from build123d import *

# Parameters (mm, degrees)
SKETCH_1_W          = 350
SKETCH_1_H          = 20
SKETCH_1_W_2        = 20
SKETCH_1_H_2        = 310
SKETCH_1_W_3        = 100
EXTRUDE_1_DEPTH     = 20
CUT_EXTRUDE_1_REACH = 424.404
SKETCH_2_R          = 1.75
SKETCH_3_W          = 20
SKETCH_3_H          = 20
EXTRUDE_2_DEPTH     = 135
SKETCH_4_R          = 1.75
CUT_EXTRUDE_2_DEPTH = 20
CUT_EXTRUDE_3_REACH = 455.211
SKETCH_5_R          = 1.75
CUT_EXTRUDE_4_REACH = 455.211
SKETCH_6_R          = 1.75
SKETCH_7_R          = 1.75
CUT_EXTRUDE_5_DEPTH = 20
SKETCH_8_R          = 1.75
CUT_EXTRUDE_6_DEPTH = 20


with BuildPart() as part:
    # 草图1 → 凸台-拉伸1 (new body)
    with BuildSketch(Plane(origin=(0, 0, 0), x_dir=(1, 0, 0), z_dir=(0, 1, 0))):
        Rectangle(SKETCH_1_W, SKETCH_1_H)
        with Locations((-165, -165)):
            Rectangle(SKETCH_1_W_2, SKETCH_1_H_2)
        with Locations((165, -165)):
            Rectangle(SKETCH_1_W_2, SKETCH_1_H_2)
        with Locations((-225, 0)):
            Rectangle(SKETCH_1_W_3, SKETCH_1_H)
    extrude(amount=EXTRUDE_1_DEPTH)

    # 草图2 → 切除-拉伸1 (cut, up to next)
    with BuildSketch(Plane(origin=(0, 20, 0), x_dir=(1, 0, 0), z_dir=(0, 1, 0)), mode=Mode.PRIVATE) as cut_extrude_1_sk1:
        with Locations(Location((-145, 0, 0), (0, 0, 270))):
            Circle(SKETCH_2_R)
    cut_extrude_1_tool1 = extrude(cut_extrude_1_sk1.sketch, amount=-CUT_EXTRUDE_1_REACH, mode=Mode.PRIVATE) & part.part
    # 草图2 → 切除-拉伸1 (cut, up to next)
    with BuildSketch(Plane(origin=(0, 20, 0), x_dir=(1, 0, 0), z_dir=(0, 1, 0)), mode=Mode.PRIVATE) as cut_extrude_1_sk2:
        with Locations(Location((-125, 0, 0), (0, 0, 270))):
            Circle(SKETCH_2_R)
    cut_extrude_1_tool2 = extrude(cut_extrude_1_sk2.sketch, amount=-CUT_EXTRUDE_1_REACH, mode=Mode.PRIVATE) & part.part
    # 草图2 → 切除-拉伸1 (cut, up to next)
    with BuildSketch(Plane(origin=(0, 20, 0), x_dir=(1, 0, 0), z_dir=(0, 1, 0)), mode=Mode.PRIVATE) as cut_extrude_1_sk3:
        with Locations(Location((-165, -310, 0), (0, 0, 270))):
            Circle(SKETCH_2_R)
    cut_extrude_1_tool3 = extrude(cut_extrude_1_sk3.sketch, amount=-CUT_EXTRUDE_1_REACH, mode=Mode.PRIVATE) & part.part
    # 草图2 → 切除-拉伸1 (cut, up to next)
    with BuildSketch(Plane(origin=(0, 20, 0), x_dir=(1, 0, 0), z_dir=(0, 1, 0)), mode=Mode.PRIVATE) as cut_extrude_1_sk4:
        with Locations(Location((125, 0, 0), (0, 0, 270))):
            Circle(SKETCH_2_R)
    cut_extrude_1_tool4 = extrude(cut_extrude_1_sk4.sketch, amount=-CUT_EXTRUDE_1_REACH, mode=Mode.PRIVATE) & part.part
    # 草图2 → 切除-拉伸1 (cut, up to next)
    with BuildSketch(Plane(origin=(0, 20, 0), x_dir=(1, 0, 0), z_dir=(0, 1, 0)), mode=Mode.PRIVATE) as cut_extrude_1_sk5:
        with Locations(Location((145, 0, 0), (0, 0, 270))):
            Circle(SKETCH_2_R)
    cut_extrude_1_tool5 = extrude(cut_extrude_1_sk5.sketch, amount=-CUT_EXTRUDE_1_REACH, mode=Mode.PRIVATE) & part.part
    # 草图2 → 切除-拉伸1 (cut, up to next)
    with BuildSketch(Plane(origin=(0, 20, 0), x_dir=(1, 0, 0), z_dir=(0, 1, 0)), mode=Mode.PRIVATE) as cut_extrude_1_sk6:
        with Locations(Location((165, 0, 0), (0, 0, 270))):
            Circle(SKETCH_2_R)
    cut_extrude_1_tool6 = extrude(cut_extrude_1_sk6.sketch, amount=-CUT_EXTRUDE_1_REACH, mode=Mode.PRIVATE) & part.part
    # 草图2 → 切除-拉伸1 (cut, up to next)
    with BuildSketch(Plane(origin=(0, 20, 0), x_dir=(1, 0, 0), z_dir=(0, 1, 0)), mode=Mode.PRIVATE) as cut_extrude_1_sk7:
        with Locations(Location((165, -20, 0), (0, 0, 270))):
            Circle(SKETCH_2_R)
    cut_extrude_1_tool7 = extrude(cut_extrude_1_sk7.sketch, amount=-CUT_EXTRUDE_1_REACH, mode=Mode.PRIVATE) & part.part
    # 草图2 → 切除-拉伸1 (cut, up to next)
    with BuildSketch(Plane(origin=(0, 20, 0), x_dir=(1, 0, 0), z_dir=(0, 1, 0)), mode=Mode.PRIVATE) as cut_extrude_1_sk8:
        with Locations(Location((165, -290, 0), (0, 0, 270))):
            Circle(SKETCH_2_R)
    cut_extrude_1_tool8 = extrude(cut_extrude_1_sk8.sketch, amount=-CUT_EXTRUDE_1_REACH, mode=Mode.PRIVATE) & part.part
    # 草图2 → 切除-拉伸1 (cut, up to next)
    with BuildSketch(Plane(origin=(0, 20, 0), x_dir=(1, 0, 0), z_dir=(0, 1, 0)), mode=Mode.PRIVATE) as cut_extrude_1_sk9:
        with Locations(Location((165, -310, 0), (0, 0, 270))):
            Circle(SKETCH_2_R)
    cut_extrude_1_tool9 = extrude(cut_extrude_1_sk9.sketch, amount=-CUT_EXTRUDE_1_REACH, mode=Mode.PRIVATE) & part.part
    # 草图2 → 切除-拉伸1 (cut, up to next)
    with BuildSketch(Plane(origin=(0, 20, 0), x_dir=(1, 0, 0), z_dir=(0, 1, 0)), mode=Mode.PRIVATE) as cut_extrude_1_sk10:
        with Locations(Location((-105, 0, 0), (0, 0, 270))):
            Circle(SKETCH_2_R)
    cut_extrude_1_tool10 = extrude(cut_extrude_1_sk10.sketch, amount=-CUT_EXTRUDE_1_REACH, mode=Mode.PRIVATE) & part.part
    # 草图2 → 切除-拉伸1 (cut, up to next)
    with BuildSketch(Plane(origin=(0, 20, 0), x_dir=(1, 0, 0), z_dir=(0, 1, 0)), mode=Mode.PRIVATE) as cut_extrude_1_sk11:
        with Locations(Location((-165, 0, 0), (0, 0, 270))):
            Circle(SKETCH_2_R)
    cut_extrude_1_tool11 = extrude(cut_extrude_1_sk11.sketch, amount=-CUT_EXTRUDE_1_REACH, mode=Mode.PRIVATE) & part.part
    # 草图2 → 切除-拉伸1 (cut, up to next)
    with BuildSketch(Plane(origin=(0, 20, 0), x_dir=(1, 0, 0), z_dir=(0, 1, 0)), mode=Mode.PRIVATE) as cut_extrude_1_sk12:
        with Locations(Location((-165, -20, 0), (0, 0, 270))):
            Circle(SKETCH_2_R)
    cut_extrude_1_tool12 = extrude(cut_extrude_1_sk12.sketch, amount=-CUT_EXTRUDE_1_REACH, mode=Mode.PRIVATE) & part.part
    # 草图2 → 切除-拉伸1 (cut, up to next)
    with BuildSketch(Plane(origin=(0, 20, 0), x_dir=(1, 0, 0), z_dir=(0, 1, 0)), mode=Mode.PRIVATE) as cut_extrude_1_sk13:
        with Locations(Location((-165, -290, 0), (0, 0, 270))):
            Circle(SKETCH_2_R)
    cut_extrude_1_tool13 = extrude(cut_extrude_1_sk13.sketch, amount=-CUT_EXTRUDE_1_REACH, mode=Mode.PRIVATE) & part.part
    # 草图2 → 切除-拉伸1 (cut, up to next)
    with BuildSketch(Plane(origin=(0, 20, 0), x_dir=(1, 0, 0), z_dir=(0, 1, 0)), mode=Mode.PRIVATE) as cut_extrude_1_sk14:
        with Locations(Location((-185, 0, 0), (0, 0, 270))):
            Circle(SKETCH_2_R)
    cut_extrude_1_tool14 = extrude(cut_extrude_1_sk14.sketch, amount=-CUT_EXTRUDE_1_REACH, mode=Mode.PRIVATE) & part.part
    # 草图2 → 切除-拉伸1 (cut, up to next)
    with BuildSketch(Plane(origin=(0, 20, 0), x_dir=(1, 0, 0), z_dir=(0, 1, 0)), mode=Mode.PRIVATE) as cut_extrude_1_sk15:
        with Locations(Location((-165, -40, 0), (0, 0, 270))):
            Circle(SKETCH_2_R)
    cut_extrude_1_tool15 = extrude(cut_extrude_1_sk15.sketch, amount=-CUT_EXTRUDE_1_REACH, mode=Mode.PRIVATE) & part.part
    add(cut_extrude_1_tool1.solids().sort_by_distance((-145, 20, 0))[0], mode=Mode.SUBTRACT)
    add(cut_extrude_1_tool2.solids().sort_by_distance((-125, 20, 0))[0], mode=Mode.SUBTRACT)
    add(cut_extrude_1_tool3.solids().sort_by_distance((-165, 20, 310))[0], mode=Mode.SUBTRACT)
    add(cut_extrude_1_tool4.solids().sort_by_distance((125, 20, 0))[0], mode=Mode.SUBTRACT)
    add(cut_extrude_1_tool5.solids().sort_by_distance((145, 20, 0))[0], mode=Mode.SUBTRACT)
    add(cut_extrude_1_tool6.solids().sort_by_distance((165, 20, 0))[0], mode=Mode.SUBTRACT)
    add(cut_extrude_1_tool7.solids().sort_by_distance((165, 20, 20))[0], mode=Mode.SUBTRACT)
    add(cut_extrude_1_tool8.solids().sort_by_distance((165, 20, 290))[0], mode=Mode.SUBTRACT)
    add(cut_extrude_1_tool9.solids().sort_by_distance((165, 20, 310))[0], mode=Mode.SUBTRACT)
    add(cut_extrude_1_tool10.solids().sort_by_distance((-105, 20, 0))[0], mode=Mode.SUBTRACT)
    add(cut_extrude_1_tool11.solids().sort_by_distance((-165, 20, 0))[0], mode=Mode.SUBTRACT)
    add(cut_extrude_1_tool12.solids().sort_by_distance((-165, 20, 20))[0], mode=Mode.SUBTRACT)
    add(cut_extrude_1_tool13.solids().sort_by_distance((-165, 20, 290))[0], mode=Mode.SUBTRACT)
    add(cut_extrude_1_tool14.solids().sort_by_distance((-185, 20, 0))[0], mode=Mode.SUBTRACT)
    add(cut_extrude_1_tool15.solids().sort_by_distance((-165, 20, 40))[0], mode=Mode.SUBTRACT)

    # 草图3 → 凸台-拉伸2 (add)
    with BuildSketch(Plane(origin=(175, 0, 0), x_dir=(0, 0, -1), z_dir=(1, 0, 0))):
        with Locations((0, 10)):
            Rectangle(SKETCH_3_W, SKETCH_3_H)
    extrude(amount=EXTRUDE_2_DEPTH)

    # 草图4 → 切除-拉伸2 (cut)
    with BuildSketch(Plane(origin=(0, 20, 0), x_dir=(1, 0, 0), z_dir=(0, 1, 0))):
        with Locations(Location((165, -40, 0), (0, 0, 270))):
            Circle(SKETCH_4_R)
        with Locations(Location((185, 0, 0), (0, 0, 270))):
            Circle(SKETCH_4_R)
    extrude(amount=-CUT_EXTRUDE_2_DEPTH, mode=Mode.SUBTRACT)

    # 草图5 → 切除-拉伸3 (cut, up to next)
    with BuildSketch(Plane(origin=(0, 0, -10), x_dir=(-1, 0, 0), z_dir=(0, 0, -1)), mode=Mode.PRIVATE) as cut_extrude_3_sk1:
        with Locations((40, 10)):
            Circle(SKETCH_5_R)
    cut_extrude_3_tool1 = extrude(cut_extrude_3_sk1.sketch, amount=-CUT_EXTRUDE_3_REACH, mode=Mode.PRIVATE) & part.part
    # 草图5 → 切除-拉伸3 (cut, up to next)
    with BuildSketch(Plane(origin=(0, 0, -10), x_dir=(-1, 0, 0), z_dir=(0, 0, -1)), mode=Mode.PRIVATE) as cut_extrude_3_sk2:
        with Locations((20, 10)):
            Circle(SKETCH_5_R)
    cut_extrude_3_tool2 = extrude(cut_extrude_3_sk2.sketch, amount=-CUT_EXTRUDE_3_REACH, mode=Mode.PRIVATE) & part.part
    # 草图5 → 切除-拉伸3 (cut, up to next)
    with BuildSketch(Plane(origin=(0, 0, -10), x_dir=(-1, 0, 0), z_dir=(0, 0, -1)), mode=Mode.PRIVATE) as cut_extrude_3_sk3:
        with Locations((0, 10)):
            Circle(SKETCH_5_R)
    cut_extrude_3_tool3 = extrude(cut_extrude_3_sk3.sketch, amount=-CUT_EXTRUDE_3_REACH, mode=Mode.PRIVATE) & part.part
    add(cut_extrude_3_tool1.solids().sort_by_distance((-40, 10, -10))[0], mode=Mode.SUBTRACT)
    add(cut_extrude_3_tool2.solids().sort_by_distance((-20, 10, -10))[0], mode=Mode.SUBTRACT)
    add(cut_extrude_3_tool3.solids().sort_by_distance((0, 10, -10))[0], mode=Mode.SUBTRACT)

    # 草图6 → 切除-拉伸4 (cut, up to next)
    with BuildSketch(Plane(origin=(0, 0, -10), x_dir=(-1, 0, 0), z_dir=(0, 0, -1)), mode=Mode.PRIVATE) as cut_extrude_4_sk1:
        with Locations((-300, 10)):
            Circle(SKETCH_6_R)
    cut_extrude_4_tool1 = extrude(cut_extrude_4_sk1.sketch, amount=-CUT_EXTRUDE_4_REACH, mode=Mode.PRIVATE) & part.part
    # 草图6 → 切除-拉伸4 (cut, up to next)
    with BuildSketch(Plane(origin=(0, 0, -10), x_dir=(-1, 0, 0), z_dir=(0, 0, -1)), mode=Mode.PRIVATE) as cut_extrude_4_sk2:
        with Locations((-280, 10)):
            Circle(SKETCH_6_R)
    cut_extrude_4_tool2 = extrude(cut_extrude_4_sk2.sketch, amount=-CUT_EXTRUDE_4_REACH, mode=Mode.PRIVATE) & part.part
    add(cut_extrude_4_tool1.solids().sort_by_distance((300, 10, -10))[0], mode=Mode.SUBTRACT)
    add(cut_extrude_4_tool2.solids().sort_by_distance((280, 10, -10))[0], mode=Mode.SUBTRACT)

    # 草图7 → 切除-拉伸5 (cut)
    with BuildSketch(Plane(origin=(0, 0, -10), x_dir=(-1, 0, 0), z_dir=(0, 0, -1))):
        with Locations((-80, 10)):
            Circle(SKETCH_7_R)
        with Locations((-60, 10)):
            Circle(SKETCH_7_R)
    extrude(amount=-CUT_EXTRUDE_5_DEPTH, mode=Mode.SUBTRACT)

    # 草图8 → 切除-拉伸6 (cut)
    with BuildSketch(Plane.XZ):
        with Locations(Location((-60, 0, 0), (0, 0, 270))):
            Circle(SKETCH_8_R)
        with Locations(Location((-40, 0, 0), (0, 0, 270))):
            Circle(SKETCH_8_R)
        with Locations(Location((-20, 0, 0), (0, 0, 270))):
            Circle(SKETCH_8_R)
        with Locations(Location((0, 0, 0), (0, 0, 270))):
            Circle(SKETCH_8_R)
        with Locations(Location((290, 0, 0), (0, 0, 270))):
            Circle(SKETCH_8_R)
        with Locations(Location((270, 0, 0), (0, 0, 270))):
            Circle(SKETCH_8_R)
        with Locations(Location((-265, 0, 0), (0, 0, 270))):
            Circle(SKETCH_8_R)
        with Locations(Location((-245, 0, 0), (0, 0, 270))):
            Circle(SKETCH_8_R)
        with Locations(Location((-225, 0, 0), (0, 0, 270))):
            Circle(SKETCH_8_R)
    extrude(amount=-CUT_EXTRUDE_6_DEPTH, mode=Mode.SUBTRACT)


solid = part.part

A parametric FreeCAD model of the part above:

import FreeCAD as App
import Part
import Sketcher

V = App.Vector
Q = App.Units.Quantity


def add_polygon(sketch, points):
    """Adds a closed chain of lines whose ends are joined by coincident constraints."""
    first, n = sketch.GeometryCount, len(points)
    for a, b in zip(points, points[1:] + points[:1]):
        sketch.addGeometry(Part.LineSegment(App.Vector(*a, 0), App.Vector(*b, 0)), False)
    for i in range(n):
        sketch.addConstraint(Sketcher.Constraint("Coincident", first + i, 2, first + (i + 1) % n, 1))

doc = App.newDocument("Part")
body = doc.addObject("PartDesign::Body", "Body")

# Sketch on XZ plane
sketch1 = body.newObject("Sketcher::SketchObject", "Sketch")
sketch1.AttachmentSupport = (doc.getObject("XZ_Plane"), [""])
sketch1.MapMode = "FlatFace"
add_polygon(sketch1, [(-175, 10), (-175, 320), (-155, 320), (-155, 10), (155, 10), (155, 320), (175, 320), (175, -10), (-275, -10), (-275, 10)])  # lines 0-9
sketch1.addConstraint([
    Sketcher.Constraint("Vertical", 0),
    Sketcher.Constraint("Horizontal", 1),
    Sketcher.Constraint("Vertical", 2),
    Sketcher.Constraint("Horizontal", 3),
    Sketcher.Constraint("Vertical", 4),
    Sketcher.Constraint("Horizontal", 5),
    Sketcher.Constraint("Vertical", 6),
    Sketcher.Constraint("Horizontal", 7),
    Sketcher.Constraint("Vertical", 8),
    Sketcher.Constraint("Horizontal", 9),
    Sketcher.Constraint("Symmetric", 6, 2, 9, 2, -1, 1),
    Sketcher.Constraint("Symmetric", 1, 2, 4, 2, -2),
    Sketcher.Constraint("Horizontal", 3, 2, 8, 2),
    Sketcher.Constraint("Equal", 3, 0),
    Sketcher.Constraint("Equal", 5, 8),
    Sketcher.Constraint("DistanceX", 1, 1, 1, 2, Q("20 mm")),
    Sketcher.Constraint("DistanceX", 3, 1, 3, 2, Q("310 mm")),
    Sketcher.Constraint("DistanceX", 7, 2, 7, 1, Q("450 mm")),
])
pad1 = body.newObject("PartDesign::Pad", "Pad")
pad1.Profile = sketch1
pad1.Length = 20
pad1.Reversed = True

# Sketch on XZ plane
sketch2 = body.newObject("Sketcher::SketchObject", "Sketch001")
sketch2.AttachmentSupport = (doc.getObject("XZ_Plane"), [""])
sketch2.MapMode = "FlatFace"
sketch2.AttachmentOffset = App.Placement(V(0, 0, -20), App.Rotation())
sketch2.addGeometry(Part.Circle(V(-145, 0, 0), V(0, 0, 1), 1.8), False)
sketch2.addConstraint([
    Sketcher.Constraint("PointOnObject", 0, 3, -1),
    Sketcher.Constraint("Diameter", 0, Q("3.5 mm")),
    Sketcher.Constraint("DistanceX", 0, 3, -1, 1, Q("145 mm")),
])
pocket1 = body.newObject("PartDesign::Pocket", "Pocket")
pocket1.Profile = sketch2
pocket1.Type = "UpToFirst"
pocket1.Reversed = True

# Sketch on XZ plane
sketch3 = body.newObject("Sketcher::SketchObject", "Sketch002")
sketch3.AttachmentSupport = (doc.getObject("XZ_Plane"), [""])
sketch3.MapMode = "FlatFace"
sketch3.AttachmentOffset = App.Placement(V(0, 0, -20), App.Rotation())
sketch3.addGeometry(Part.Circle(V(-125, 0, 0), V(0, 0, 1), 1.8), False)
sketch3.addConstraint([
    Sketcher.Constraint("PointOnObject", 0, 3, -1),
    Sketcher.Constraint("Diameter", 0, Q("3.5 mm")),
    Sketcher.Constraint("DistanceX", 0, 3, -1, 1, Q("125 mm")),
])
pocket2 = body.newObject("PartDesign::Pocket", "Pocket001")
pocket2.Profile = sketch3
pocket2.Type = "UpToFirst"
pocket2.Reversed = True

# Sketch on XZ plane
sketch4 = body.newObject("Sketcher::SketchObject", "Sketch003")
sketch4.AttachmentSupport = (doc.getObject("XZ_Plane"), [""])
sketch4.MapMode = "FlatFace"
sketch4.AttachmentOffset = App.Placement(V(0, 0, -20), App.Rotation())
sketch4.addGeometry(Part.Circle(V(-165, 310, 0), V(0, 0, 1), 1.8), False)
sketch4.addConstraint([
    Sketcher.Constraint("Diameter", 0, Q("3.5 mm")),
    Sketcher.Constraint("DistanceX", 0, 3, -1, 1, Q("165 mm")),
    Sketcher.Constraint("DistanceY", -1, 1, 0, 3, Q("310 mm")),
])
pocket3 = body.newObject("PartDesign::Pocket", "Pocket002")
pocket3.Profile = sketch4
pocket3.Type = "UpToFirst"
pocket3.Reversed = True

# Sketch on XZ plane
sketch5 = body.newObject("Sketcher::SketchObject", "Sketch004")
sketch5.AttachmentSupport = (doc.getObject("XZ_Plane"), [""])
sketch5.MapMode = "FlatFace"
sketch5.AttachmentOffset = App.Placement(V(0, 0, -20), App.Rotation())
sketch5.addGeometry(Part.Circle(V(125, 0, 0), V(0, 0, 1), 1.8), False)
sketch5.addConstraint([
    Sketcher.Constraint("PointOnObject", 0, 3, -1),
    Sketcher.Constraint("Diameter", 0, Q("3.5 mm")),
    Sketcher.Constraint("DistanceX", -1, 1, 0, 3, Q("125 mm")),
])
pocket4 = body.newObject("PartDesign::Pocket", "Pocket003")
pocket4.Profile = sketch5
pocket4.Type = "UpToFirst"
pocket4.Reversed = True

# Sketch on XZ plane
sketch6 = body.newObject("Sketcher::SketchObject", "Sketch005")
sketch6.AttachmentSupport = (doc.getObject("XZ_Plane"), [""])
sketch6.MapMode = "FlatFace"
sketch6.AttachmentOffset = App.Placement(V(0, 0, -20), App.Rotation())
sketch6.addGeometry(Part.Circle(V(145, 0, 0), V(0, 0, 1), 1.8), False)
sketch6.addConstraint([
    Sketcher.Constraint("PointOnObject", 0, 3, -1),
    Sketcher.Constraint("Diameter", 0, Q("3.5 mm")),
    Sketcher.Constraint("DistanceX", -1, 1, 0, 3, Q("145 mm")),
])
pocket5 = body.newObject("PartDesign::Pocket", "Pocket004")
pocket5.Profile = sketch6
pocket5.Type = "UpToFirst"
pocket5.Reversed = True

# Sketch on XZ plane
sketch7 = body.newObject("Sketcher::SketchObject", "Sketch006")
sketch7.AttachmentSupport = (doc.getObject("XZ_Plane"), [""])
sketch7.MapMode = "FlatFace"
sketch7.AttachmentOffset = App.Placement(V(0, 0, -20), App.Rotation())
sketch7.addGeometry(Part.Circle(V(165, 0, 0), V(0, 0, 1), 1.8), False)
sketch7.addConstraint([
    Sketcher.Constraint("PointOnObject", 0, 3, -1),
    Sketcher.Constraint("Diameter", 0, Q("3.5 mm")),
    Sketcher.Constraint("DistanceX", -1, 1, 0, 3, Q("165 mm")),
])
pocket6 = body.newObject("PartDesign::Pocket", "Pocket005")
pocket6.Profile = sketch7
pocket6.Type = "UpToFirst"
pocket6.Reversed = True

# Sketch on XZ plane
sketch8 = body.newObject("Sketcher::SketchObject", "Sketch007")
sketch8.AttachmentSupport = (doc.getObject("XZ_Plane"), [""])
sketch8.MapMode = "FlatFace"
sketch8.AttachmentOffset = App.Placement(V(0, 0, -20), App.Rotation())
sketch8.addGeometry(Part.Circle(V(165, 20, 0), V(0, 0, 1), 1.8), False)
sketch8.addConstraint([
    Sketcher.Constraint("Diameter", 0, Q("3.5 mm")),
    Sketcher.Constraint("DistanceX", -1, 1, 0, 3, Q("165 mm")),
    Sketcher.Constraint("DistanceY", -1, 1, 0, 3, Q("20 mm")),
])
pocket7 = body.newObject("PartDesign::Pocket", "Pocket006")
pocket7.Profile = sketch8
pocket7.Type = "UpToFirst"
pocket7.Reversed = True

# Sketch on XZ plane
sketch9 = body.newObject("Sketcher::SketchObject", "Sketch008")
sketch9.AttachmentSupport = (doc.getObject("XZ_Plane"), [""])
sketch9.MapMode = "FlatFace"
sketch9.AttachmentOffset = App.Placement(V(0, 0, -20), App.Rotation())
sketch9.addGeometry(Part.Circle(V(165, 290, 0), V(0, 0, 1), 1.8), False)
sketch9.addConstraint([
    Sketcher.Constraint("Diameter", 0, Q("3.5 mm")),
    Sketcher.Constraint("DistanceX", -1, 1, 0, 3, Q("165 mm")),
    Sketcher.Constraint("DistanceY", -1, 1, 0, 3, Q("290 mm")),
])
pocket8 = body.newObject("PartDesign::Pocket", "Pocket007")
pocket8.Profile = sketch9
pocket8.Type = "UpToFirst"
pocket8.Reversed = True

# Sketch on XZ plane
sketch10 = body.newObject("Sketcher::SketchObject", "Sketch009")
sketch10.AttachmentSupport = (doc.getObject("XZ_Plane"), [""])
sketch10.MapMode = "FlatFace"
sketch10.AttachmentOffset = App.Placement(V(0, 0, -20), App.Rotation())
sketch10.addGeometry(Part.Circle(V(165, 310, 0), V(0, 0, 1), 1.8), False)
sketch10.addConstraint([
    Sketcher.Constraint("Diameter", 0, Q("3.5 mm")),
    Sketcher.Constraint("DistanceX", -1, 1, 0, 3, Q("165 mm")),
    Sketcher.Constraint("DistanceY", -1, 1, 0, 3, Q("310 mm")),
])
pocket9 = body.newObject("PartDesign::Pocket", "Pocket008")
pocket9.Profile = sketch10
pocket9.Type = "UpToFirst"
pocket9.Reversed = True

# Sketch on XZ plane
sketch11 = body.newObject("Sketcher::SketchObject", "Sketch010")
sketch11.AttachmentSupport = (doc.getObject("XZ_Plane"), [""])
sketch11.MapMode = "FlatFace"
sketch11.AttachmentOffset = App.Placement(V(0, 0, -20), App.Rotation())
sketch11.addGeometry(Part.Circle(V(-105, 0, 0), V(0, 0, 1), 1.8), False)
sketch11.addConstraint([
    Sketcher.Constraint("PointOnObject", 0, 3, -1),
    Sketcher.Constraint("Diameter", 0, Q("3.5 mm")),
    Sketcher.Constraint("DistanceX", 0, 3, -1, 1, Q("105 mm")),
])
pocket10 = body.newObject("PartDesign::Pocket", "Pocket009")
pocket10.Profile = sketch11
pocket10.Type = "UpToFirst"
pocket10.Reversed = True

# Sketch on XZ plane
sketch12 = body.newObject("Sketcher::SketchObject", "Sketch011")
sketch12.AttachmentSupport = (doc.getObject("XZ_Plane"), [""])
sketch12.MapMode = "FlatFace"
sketch12.AttachmentOffset = App.Placement(V(0, 0, -20), App.Rotation())
sketch12.addGeometry(Part.Circle(V(-165, 0, 0), V(0, 0, 1), 1.8), False)
sketch12.addConstraint([
    Sketcher.Constraint("PointOnObject", 0, 3, -1),
    Sketcher.Constraint("Diameter", 0, Q("3.5 mm")),
    Sketcher.Constraint("DistanceX", 0, 3, -1, 1, Q("165 mm")),
])
pocket11 = body.newObject("PartDesign::Pocket", "Pocket010")
pocket11.Profile = sketch12
pocket11.Type = "UpToFirst"
pocket11.Reversed = True

# Sketch on XZ plane
sketch13 = body.newObject("Sketcher::SketchObject", "Sketch012")
sketch13.AttachmentSupport = (doc.getObject("XZ_Plane"), [""])
sketch13.MapMode = "FlatFace"
sketch13.AttachmentOffset = App.Placement(V(0, 0, -20), App.Rotation())
sketch13.addGeometry(Part.Circle(V(-165, 20, 0), V(0, 0, 1), 1.8), False)
sketch13.addConstraint([
    Sketcher.Constraint("Diameter", 0, Q("3.5 mm")),
    Sketcher.Constraint("DistanceX", 0, 3, -1, 1, Q("165 mm")),
    Sketcher.Constraint("DistanceY", -1, 1, 0, 3, Q("20 mm")),
])
pocket12 = body.newObject("PartDesign::Pocket", "Pocket011")
pocket12.Profile = sketch13
pocket12.Type = "UpToFirst"
pocket12.Reversed = True

# Sketch on XZ plane
sketch14 = body.newObject("Sketcher::SketchObject", "Sketch013")
sketch14.AttachmentSupport = (doc.getObject("XZ_Plane"), [""])
sketch14.MapMode = "FlatFace"
sketch14.AttachmentOffset = App.Placement(V(0, 0, -20), App.Rotation())
sketch14.addGeometry(Part.Circle(V(-165, 290, 0), V(0, 0, 1), 1.8), False)
sketch14.addConstraint([
    Sketcher.Constraint("Diameter", 0, Q("3.5 mm")),
    Sketcher.Constraint("DistanceX", 0, 3, -1, 1, Q("165 mm")),
    Sketcher.Constraint("DistanceY", -1, 1, 0, 3, Q("290 mm")),
])
pocket13 = body.newObject("PartDesign::Pocket", "Pocket012")
pocket13.Profile = sketch14
pocket13.Type = "UpToFirst"
pocket13.Reversed = True

# Sketch on XZ plane
sketch15 = body.newObject("Sketcher::SketchObject", "Sketch014")
sketch15.AttachmentSupport = (doc.getObject("XZ_Plane"), [""])
sketch15.MapMode = "FlatFace"
sketch15.AttachmentOffset = App.Placement(V(0, 0, -20), App.Rotation())
sketch15.addGeometry(Part.Circle(V(-185, 0, 0), V(0, 0, 1), 1.8), False)
sketch15.addConstraint([
    Sketcher.Constraint("PointOnObject", 0, 3, -1),
    Sketcher.Constraint("Diameter", 0, Q("3.5 mm")),
    Sketcher.Constraint("DistanceX", 0, 3, -1, 1, Q("185 mm")),
])
pocket14 = body.newObject("PartDesign::Pocket", "Pocket013")
pocket14.Profile = sketch15
pocket14.Type = "UpToFirst"
pocket14.Reversed = True

# Sketch on XZ plane
sketch16 = body.newObject("Sketcher::SketchObject", "Sketch015")
sketch16.AttachmentSupport = (doc.getObject("XZ_Plane"), [""])
sketch16.MapMode = "FlatFace"
sketch16.AttachmentOffset = App.Placement(V(0, 0, -20), App.Rotation())
sketch16.addGeometry(Part.Circle(V(-165, 40, 0), V(0, 0, 1), 1.8), False)
sketch16.addConstraint([
    Sketcher.Constraint("Diameter", 0, Q("3.5 mm")),
    Sketcher.Constraint("DistanceX", 0, 3, -1, 1, Q("165 mm")),
    Sketcher.Constraint("DistanceY", -1, 1, 0, 3, Q("40 mm")),
])
pocket15 = body.newObject("PartDesign::Pocket", "Pocket014")
pocket15.Profile = sketch16
pocket15.Type = "UpToFirst"
pocket15.Reversed = True

# Sketch on YZ plane
sketch17 = body.newObject("Sketcher::SketchObject", "Sketch016")
sketch17.AttachmentSupport = (doc.getObject("YZ_Plane"), [""])
sketch17.MapMode = "FlatFace"
sketch17.AttachmentOffset = App.Placement(V(0, 0, 175), App.Rotation())
add_polygon(sketch17, [(20, 10), (0, 10), (0, -10), (20, -10)])  # lines 0-3
sketch17.addConstraint([
    Sketcher.Constraint("Horizontal", 0),
    Sketcher.Constraint("Vertical", 1),
    Sketcher.Constraint("Horizontal", 2),
    Sketcher.Constraint("Vertical", 3),
    Sketcher.Constraint("Symmetric", 0, 2, 1, 2, -1, 1),
    Sketcher.Constraint("Equal", 2, 1),
    Sketcher.Constraint("DistanceX", 0, 2, 0, 1, Q("20 mm")),
])
pad2 = body.newObject("PartDesign::Pad", "Pad001")
pad2.Profile = sketch17
pad2.Length = 135

# Sketch on XZ plane
sketch18 = body.newObject("Sketcher::SketchObject", "Sketch017")
sketch18.AttachmentSupport = (doc.getObject("XZ_Plane"), [""])
sketch18.MapMode = "FlatFace"
sketch18.AttachmentOffset = App.Placement(V(0, 0, -20), App.Rotation())
sketch18.addGeometry([
    Part.Circle(V(165, 40, 0), V(0, 0, 1), 1.8),
    Part.Circle(V(185, 0, 0), V(0, 0, 1), 1.8),
], False)
sketch18.addConstraint([
    Sketcher.Constraint("Equal", 0, 1),
    Sketcher.Constraint("PointOnObject", 1, 3, -1),
    Sketcher.Constraint("Diameter", 0, Q("3.5 mm")),
    Sketcher.Constraint("DistanceX", -1, 1, 0, 3, Q("165 mm")),
    Sketcher.Constraint("DistanceY", -1, 1, 0, 3, Q("40 mm")),
    Sketcher.Constraint("DistanceX", -1, 1, 1, 3, Q("185 mm")),
])
pocket16 = body.newObject("PartDesign::Pocket", "Pocket015")
pocket16.Profile = sketch18
pocket16.Length = 20
pocket16.Reversed = True

# Sketch on XY plane
sketch19 = body.newObject("Sketcher::SketchObject", "Sketch018")
sketch19.AttachmentSupport = (doc.getObject("XY_Plane"), [""])
sketch19.MapMode = "FlatFace"
sketch19.AttachmentOffset = App.Placement(V(0, 0, -10), App.Rotation())
sketch19.addGeometry(Part.Circle(V(-40, 10, 0), V(0, 0, 1), 1.8), False)
sketch19.addConstraint([
    Sketcher.Constraint("Diameter", 0, Q("3.5 mm")),
    Sketcher.Constraint("DistanceX", 0, 3, -1, 1, Q("40 mm")),
    Sketcher.Constraint("DistanceY", -1, 1, 0, 3, Q("10 mm")),
])
pocket17 = body.newObject("PartDesign::Pocket", "Pocket016")
pocket17.Profile = sketch19
pocket17.Type = "UpToFirst"
pocket17.Reversed = True

# Sketch on XY plane
sketch20 = body.newObject("Sketcher::SketchObject", "Sketch019")
sketch20.AttachmentSupport = (doc.getObject("XY_Plane"), [""])
sketch20.MapMode = "FlatFace"
sketch20.AttachmentOffset = App.Placement(V(0, 0, -10), App.Rotation())
sketch20.addGeometry(Part.Circle(V(-20, 10, 0), V(0, 0, 1), 1.8), False)
sketch20.addConstraint([
    Sketcher.Constraint("Diameter", 0, Q("3.5 mm")),
    Sketcher.Constraint("DistanceX", 0, 3, -1, 1, Q("20 mm")),
    Sketcher.Constraint("DistanceY", -1, 1, 0, 3, Q("10 mm")),
])
pocket18 = body.newObject("PartDesign::Pocket", "Pocket017")
pocket18.Profile = sketch20
pocket18.Type = "UpToFirst"
pocket18.Reversed = True

# Sketch on XY plane
sketch21 = body.newObject("Sketcher::SketchObject", "Sketch020")
sketch21.AttachmentSupport = (doc.getObject("XY_Plane"), [""])
sketch21.MapMode = "FlatFace"
sketch21.AttachmentOffset = App.Placement(V(0, 0, -10), App.Rotation())
sketch21.addGeometry(Part.Circle(V(0, 10, 0), V(0, 0, 1), 1.8), False)
sketch21.addConstraint([
    Sketcher.Constraint("PointOnObject", 0, 3, -2),
    Sketcher.Constraint("Diameter", 0, Q("3.5 mm")),
    Sketcher.Constraint("DistanceY", -1, 1, 0, 3, Q("10 mm")),
])
pocket19 = body.newObject("PartDesign::Pocket", "Pocket018")
pocket19.Profile = sketch21
pocket19.Type = "UpToFirst"
pocket19.Reversed = True

# Sketch on XY plane
sketch22 = body.newObject("Sketcher::SketchObject", "Sketch021")
sketch22.AttachmentSupport = (doc.getObject("XY_Plane"), [""])
sketch22.MapMode = "FlatFace"
sketch22.AttachmentOffset = App.Placement(V(0, 0, -10), App.Rotation())
sketch22.addGeometry(Part.Circle(V(300, 10, 0), V(0, 0, 1), 1.8), False)
sketch22.addConstraint([
    Sketcher.Constraint("Diameter", 0, Q("3.5 mm")),
    Sketcher.Constraint("DistanceX", -1, 1, 0, 3, Q("300 mm")),
    Sketcher.Constraint("DistanceY", -1, 1, 0, 3, Q("10 mm")),
])
pocket20 = body.newObject("PartDesign::Pocket", "Pocket019")
pocket20.Profile = sketch22
pocket20.Type = "UpToFirst"
pocket20.Reversed = True

# Sketch on XY plane
sketch23 = body.newObject("Sketcher::SketchObject", "Sketch022")
sketch23.AttachmentSupport = (doc.getObject("XY_Plane"), [""])
sketch23.MapMode = "FlatFace"
sketch23.AttachmentOffset = App.Placement(V(0, 0, -10), App.Rotation())
sketch23.addGeometry(Part.Circle(V(280, 10, 0), V(0, 0, 1), 1.8), False)
sketch23.addConstraint([
    Sketcher.Constraint("Diameter", 0, Q("3.5 mm")),
    Sketcher.Constraint("DistanceX", -1, 1, 0, 3, Q("280 mm")),
    Sketcher.Constraint("DistanceY", -1, 1, 0, 3, Q("10 mm")),
])
pocket21 = body.newObject("PartDesign::Pocket", "Pocket020")
pocket21.Profile = sketch23
pocket21.Type = "UpToFirst"
pocket21.Reversed = True

# Sketch on XY plane
sketch24 = body.newObject("Sketcher::SketchObject", "Sketch023")
sketch24.AttachmentSupport = (doc.getObject("XY_Plane"), [""])
sketch24.MapMode = "FlatFace"
sketch24.AttachmentOffset = App.Placement(V(0, 0, -10), App.Rotation())
sketch24.addGeometry([
    Part.Circle(V(80, 10, 0), V(0, 0, 1), 1.8),
    Part.Circle(V(60, 10, 0), V(0, 0, 1), 1.8),
], False)
sketch24.addConstraint([
    Sketcher.Constraint("Equal", 0, 1),
    Sketcher.Constraint("Horizontal", 0, 3, 1, 3),
    Sketcher.Constraint("Diameter", 0, Q("3.5 mm")),
    Sketcher.Constraint("DistanceX", -1, 1, 0, 3, Q("80 mm")),
    Sketcher.Constraint("DistanceY", -1, 1, 0, 3, Q("10 mm")),
    Sketcher.Constraint("DistanceX", -1, 1, 1, 3, Q("60 mm")),
])
pocket22 = body.newObject("PartDesign::Pocket", "Pocket021")
pocket22.Profile = sketch24
pocket22.Length = 20
pocket22.Reversed = True

# Sketch on XZ plane
sketch25 = body.newObject("Sketcher::SketchObject", "Sketch024")
sketch25.AttachmentSupport = (doc.getObject("XZ_Plane"), [""])
sketch25.MapMode = "FlatFace"
sketch25.addGeometry([
    Part.Circle(V(-60, 0, 0), V(0, 0, 1), 1.8),  # 0
    Part.Circle(V(-40, 0, 0), V(0, 0, 1), 1.8),  # 1
    Part.Circle(V(-20, 0, 0), V(0, 0, 1), 1.8),  # 2
    Part.Circle(V(0, 0, 0), V(0, 0, 1), 1.8),  # 3
    Part.Circle(V(290, 0, 0), V(0, 0, 1), 1.8),  # 4
    Part.Circle(V(270, 0, 0), V(0, 0, 1), 1.8),  # 5
    Part.Circle(V(-265, 0, 0), V(0, 0, 1), 1.8),  # 6
    Part.Circle(V(-245, 0, 0), V(0, 0, 1), 1.8),  # 7
    Part.Circle(V(-225, 0, 0), V(0, 0, 1), 1.8),  # 8
], False)
sketch25.addConstraint([
    Sketcher.Constraint("Coincident", 3, 3, -1, 1),
    Sketcher.Constraint("Equal", 0, 1),
    Sketcher.Constraint("Equal", 1, 2),
    Sketcher.Constraint("Equal", 2, 3),
    Sketcher.Constraint("Equal", 3, 4),
    Sketcher.Constraint("Equal", 4, 5),
    Sketcher.Constraint("Equal", 5, 6),
    Sketcher.Constraint("Equal", 6, 7),
    Sketcher.Constraint("Equal", 7, 8),
    Sketcher.Constraint("PointOnObject", 0, 3, -1),
    Sketcher.Constraint("PointOnObject", 1, 3, -1),
    Sketcher.Constraint("PointOnObject", 2, 3, -1),
    Sketcher.Constraint("PointOnObject", 4, 3, -1),
    Sketcher.Constraint("PointOnObject", 5, 3, -1),
    Sketcher.Constraint("PointOnObject", 6, 3, -1),
    Sketcher.Constraint("PointOnObject", 7, 3, -1),
    Sketcher.Constraint("PointOnObject", 8, 3, -1),
    Sketcher.Constraint("Diameter", 0, Q("3.5 mm")),
    Sketcher.Constraint("DistanceX", 0, 3, -1, 1, Q("60 mm")),
    Sketcher.Constraint("DistanceX", 1, 3, -1, 1, Q("40 mm")),
    Sketcher.Constraint("DistanceX", 2, 3, -1, 1, Q("20 mm")),
    Sketcher.Constraint("DistanceX", -1, 1, 4, 3, Q("290 mm")),
    Sketcher.Constraint("DistanceX", -1, 1, 5, 3, Q("270 mm")),
    Sketcher.Constraint("DistanceX", 6, 3, -1, 1, Q("265 mm")),
    Sketcher.Constraint("DistanceX", 7, 3, -1, 1, Q("245 mm")),
    Sketcher.Constraint("DistanceX", 8, 3, -1, 1, Q("225 mm")),
])
pocket23 = body.newObject("PartDesign::Pocket", "Pocket022")
pocket23.Profile = sketch25
pocket23.Length = 20

doc.recompute()
